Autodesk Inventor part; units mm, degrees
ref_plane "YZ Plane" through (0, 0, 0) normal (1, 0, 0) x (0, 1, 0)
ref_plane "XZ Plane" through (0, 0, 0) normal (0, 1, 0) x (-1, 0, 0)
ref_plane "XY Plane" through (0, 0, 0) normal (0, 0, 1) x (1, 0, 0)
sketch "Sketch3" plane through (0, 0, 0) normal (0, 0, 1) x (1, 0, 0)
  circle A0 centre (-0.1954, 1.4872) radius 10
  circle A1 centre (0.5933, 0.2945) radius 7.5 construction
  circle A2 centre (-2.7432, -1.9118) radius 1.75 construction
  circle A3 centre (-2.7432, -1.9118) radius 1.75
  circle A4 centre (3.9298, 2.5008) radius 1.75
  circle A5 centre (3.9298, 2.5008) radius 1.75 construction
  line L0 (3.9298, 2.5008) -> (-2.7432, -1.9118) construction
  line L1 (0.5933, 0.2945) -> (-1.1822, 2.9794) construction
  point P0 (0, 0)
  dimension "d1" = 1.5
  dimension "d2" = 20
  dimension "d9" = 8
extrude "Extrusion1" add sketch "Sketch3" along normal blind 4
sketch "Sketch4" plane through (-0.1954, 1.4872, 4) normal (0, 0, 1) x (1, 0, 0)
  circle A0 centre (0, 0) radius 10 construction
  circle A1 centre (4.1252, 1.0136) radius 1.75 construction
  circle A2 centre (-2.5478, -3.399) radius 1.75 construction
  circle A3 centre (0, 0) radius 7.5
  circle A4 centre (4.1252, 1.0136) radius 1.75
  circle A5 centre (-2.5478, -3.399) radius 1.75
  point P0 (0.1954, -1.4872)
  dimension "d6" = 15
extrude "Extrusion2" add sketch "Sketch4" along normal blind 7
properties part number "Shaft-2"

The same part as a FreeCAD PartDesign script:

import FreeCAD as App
import Part
import Sketcher
from FreeCAD import Vector
Q = App.Units.Quantity

doc = App.newDocument("Part")
body = doc.addObject("PartDesign::Body", "Body")

# Sketch on XY plane
sketch1 = body.newObject("Sketcher::SketchObject", "Sketch")
sketch1.AttachmentSupport = (doc.getObject("XY_Plane"), [""])
sketch1.MapMode = "FlatFace"
sketch1.addGeometry(Part.Circle(Vector(-0.2, 1.5, 0), Vector(0, 0, 1), 10), False)
sketch1.addGeometry(Part.Circle(Vector(-2.7, -1.9, 0), Vector(0, 0, 1), 1.8), False)
sketch1.addGeometry(Part.Circle(Vector(3.9, 2.5, 0), Vector(0, 0, 1), 1.8), False)
sketch1.addConstraint(Sketcher.Constraint("Equal", 1, 2))
sketch1.addConstraint(Sketcher.Constraint("Diameter", 0, Q("20 mm")))
sketch1.addConstraint(Sketcher.Constraint("Diameter", 1, Q("3.5 mm")))
sketch1.addConstraint(Sketcher.Constraint("DistanceY", 1, 3, 0, 3, Q("3.399 mm")))
sketch1.addConstraint(Sketcher.Constraint("DistanceX", 1, 3, 2, 3, Q("6.673 mm")))
sketch1.addConstraint(Sketcher.Constraint("DistanceX", 0, 3, -1, 1, Q("0.1954 mm")))
sketch1.addConstraint(Sketcher.Constraint("DistanceY", -1, 1, 0, 3, Q("1.4872 mm")))
sketch1.addConstraint(Sketcher.Constraint("DistanceX", 1, 3, -1, 1, Q("2.7432 mm")))
sketch1.addConstraint(Sketcher.Constraint("DistanceY", -1, 1, 2, 3, Q("2.5008 mm")))
pad1 = body.newObject("PartDesign::Pad", "Pad")
pad1.Profile = sketch1
pad1.Length = 4

# Sketch on XY plane
sketch2 = body.newObject("Sketcher::SketchObject", "Sketch001")
sketch2.AttachmentSupport = (doc.getObject("XY_Plane"), [""])
sketch2.MapMode = "FlatFace"
sketch2.AttachmentOffset = App.Placement(Vector(0, 0, 4), App.Rotation())
sketch2.addGeometry(Part.Circle(Vector(-0.2, 1.5, 0), Vector(0, 0, 1), 7.5), False)
sketch2.addGeometry(Part.Circle(Vector(-2.7, -1.9, 0), Vector(0, 0, 1), 1.8), False)
sketch2.addGeometry(Part.Circle(Vector(3.9, 2.5, 0), Vector(0, 0, 1), 1.8), False)
sketch2.addConstraint(Sketcher.Constraint("Equal", 1, 2))
sketch2.addConstraint(Sketcher.Constraint("Diameter", 0, Q("15 mm")))
sketch2.addConstraint(Sketcher.Constraint("Diameter", 1, Q("3.5 mm")))
sketch2.addConstraint(Sketcher.Constraint("DistanceY", 1, 3, 0, 3, Q("3.399 mm")))
sketch2.addConstraint(Sketcher.Constraint("DistanceX", 1, 3, 2, 3, Q("6.673 mm")))
sketch2.addConstraint(Sketcher.Constraint("DistanceX", 0, 3, -1, 1, Q("0.1954 mm")))
sketch2.addConstraint(Sketcher.Constraint("DistanceY", -1, 1, 0, 3, Q("1.4872 mm")))
sketch2.addConstraint(Sketcher.Constraint("DistanceX", 1, 3, -1, 1, Q("2.7432 mm")))
sketch2.addConstraint(Sketcher.Constraint("DistanceY", -1, 1, 2, 3, Q("2.5008 mm")))
pad2 = body.newObject("PartDesign::Pad", "Pad001")
pad2.Profile = sketch2
pad2.Length = 7

doc.recompute()
